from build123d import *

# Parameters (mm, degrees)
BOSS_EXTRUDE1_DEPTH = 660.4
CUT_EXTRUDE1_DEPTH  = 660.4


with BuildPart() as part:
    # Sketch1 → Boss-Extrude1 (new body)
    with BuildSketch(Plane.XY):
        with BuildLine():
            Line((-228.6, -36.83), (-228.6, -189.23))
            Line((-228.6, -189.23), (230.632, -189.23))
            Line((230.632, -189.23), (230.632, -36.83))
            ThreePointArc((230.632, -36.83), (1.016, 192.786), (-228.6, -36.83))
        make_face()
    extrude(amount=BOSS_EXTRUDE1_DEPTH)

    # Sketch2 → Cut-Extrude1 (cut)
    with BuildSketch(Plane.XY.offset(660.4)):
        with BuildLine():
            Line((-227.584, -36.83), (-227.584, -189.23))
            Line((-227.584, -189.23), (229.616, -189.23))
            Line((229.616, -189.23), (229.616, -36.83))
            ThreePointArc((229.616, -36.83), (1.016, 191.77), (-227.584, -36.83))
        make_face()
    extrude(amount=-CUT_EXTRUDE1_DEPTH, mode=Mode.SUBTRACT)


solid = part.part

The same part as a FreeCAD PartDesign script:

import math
import FreeCAD as App
import Part
import Sketcher

V = App.Vector
Q = App.Units.Quantity

doc = App.newDocument("Part")
body = doc.addObject("PartDesign::Body", "Body")

sketch1 = doc.addObject("Sketcher::SketchObject", "Sketch")
body.addObject(sketch1)
sketch1.AttachmentSupport = (doc.XY_Plane, [""])
sketch1.MapMode = "FlatFace"
sketch1.addGeometry([
    Part.LineSegment(V(-229, -37, 0), V(-229, -189, 0)),
    Part.LineSegment(V(-229, -189, 0), V(231, -189, 0)),
    Part.LineSegment(V(231, -189, 0), V(231, -37, 0)),
    Part.ArcOfCircle(Part.Circle(V(1, -37, 0), V(0, 0, 1), 230), math.radians(0), math.radians(180)),
], False)
sketch1.addConstraint([
    Sketcher.Constraint("Coincident", 0, 2, 1, 1),
    Sketcher.Constraint("Coincident", 1, 2, 2, 1),
    Sketcher.Constraint("Tangent", 2, 2, 3, 1),
    Sketcher.Constraint("Tangent", 3, 2, 0, 1),
    Sketcher.Constraint("Vertical", 0),
    Sketcher.Constraint("Horizontal", 1),
    Sketcher.Constraint("Vertical", 2),
    Sketcher.Constraint("DistanceY", 0, 2, 0, 1, Q("6 in")),
    Sketcher.Constraint("Radius", 3, Q("9.04 in")),
    Sketcher.Constraint("DistanceX", 0, 2, -1, 1, Q("9 in")),
    Sketcher.Constraint("DistanceY", 3, 3, -1, 1, Q("1.45 in")),
])
pad1 = doc.addObject("PartDesign::Pad", "Pad")
body.addObject(pad1)
pad1.Profile = sketch1
pad1.Length = Q("26 in")

sketch2 = doc.addObject("Sketcher::SketchObject", "Sketch001")
body.addObject(sketch2)
sketch2.AttachmentSupport = (doc.XY_Plane, [""])
sketch2.MapMode = "FlatFace"
sketch2.AttachmentOffset = App.Placement(V(0, 0, 26 * 25.4), App.Rotation())
sketch2.addGeometry([
    Part.LineSegment(V(-228, -37, 0), V(-228, -189, 0)),
    Part.LineSegment(V(-228, -189, 0), V(230, -189, 0)),
    Part.LineSegment(V(230, -189, 0), V(230, -37, 0)),
    Part.ArcOfCircle(Part.Circle(V(1, -37, 0), V(0, 0, 1), 229), math.radians(0), math.radians(180)),
], False)
sketch2.addConstraint([
    Sketcher.Constraint("Coincident", 0, 2, 1, 1),
    Sketcher.Constraint("Coincident", 1, 2, 2, 1),
    Sketcher.Constraint("Tangent", 2, 2, 3, 1),
    Sketcher.Constraint("Tangent", 3, 2, 0, 1),
    Sketcher.Constraint("Vertical", 0),
    Sketcher.Constraint("Horizontal", 1),
    Sketcher.Constraint("Vertical", 2),
    Sketcher.Constraint("Radius", 3, Q("9 in")),
    Sketcher.Constraint("DistanceY", 0, 2, 0, 1, Q("6 in")),
    Sketcher.Constraint("DistanceX", -1, 1, 3, 3, Q("0.04 in")),
    Sketcher.Constraint("DistanceY", 3, 3, -1, 1, Q("1.45 in")),
])
pocket1 = doc.addObject("PartDesign::Pocket", "Pocket")
body.addObject(pocket1)
pocket1.Profile = sketch2
pocket1.Length = Q("26 in")

doc.recompute()
